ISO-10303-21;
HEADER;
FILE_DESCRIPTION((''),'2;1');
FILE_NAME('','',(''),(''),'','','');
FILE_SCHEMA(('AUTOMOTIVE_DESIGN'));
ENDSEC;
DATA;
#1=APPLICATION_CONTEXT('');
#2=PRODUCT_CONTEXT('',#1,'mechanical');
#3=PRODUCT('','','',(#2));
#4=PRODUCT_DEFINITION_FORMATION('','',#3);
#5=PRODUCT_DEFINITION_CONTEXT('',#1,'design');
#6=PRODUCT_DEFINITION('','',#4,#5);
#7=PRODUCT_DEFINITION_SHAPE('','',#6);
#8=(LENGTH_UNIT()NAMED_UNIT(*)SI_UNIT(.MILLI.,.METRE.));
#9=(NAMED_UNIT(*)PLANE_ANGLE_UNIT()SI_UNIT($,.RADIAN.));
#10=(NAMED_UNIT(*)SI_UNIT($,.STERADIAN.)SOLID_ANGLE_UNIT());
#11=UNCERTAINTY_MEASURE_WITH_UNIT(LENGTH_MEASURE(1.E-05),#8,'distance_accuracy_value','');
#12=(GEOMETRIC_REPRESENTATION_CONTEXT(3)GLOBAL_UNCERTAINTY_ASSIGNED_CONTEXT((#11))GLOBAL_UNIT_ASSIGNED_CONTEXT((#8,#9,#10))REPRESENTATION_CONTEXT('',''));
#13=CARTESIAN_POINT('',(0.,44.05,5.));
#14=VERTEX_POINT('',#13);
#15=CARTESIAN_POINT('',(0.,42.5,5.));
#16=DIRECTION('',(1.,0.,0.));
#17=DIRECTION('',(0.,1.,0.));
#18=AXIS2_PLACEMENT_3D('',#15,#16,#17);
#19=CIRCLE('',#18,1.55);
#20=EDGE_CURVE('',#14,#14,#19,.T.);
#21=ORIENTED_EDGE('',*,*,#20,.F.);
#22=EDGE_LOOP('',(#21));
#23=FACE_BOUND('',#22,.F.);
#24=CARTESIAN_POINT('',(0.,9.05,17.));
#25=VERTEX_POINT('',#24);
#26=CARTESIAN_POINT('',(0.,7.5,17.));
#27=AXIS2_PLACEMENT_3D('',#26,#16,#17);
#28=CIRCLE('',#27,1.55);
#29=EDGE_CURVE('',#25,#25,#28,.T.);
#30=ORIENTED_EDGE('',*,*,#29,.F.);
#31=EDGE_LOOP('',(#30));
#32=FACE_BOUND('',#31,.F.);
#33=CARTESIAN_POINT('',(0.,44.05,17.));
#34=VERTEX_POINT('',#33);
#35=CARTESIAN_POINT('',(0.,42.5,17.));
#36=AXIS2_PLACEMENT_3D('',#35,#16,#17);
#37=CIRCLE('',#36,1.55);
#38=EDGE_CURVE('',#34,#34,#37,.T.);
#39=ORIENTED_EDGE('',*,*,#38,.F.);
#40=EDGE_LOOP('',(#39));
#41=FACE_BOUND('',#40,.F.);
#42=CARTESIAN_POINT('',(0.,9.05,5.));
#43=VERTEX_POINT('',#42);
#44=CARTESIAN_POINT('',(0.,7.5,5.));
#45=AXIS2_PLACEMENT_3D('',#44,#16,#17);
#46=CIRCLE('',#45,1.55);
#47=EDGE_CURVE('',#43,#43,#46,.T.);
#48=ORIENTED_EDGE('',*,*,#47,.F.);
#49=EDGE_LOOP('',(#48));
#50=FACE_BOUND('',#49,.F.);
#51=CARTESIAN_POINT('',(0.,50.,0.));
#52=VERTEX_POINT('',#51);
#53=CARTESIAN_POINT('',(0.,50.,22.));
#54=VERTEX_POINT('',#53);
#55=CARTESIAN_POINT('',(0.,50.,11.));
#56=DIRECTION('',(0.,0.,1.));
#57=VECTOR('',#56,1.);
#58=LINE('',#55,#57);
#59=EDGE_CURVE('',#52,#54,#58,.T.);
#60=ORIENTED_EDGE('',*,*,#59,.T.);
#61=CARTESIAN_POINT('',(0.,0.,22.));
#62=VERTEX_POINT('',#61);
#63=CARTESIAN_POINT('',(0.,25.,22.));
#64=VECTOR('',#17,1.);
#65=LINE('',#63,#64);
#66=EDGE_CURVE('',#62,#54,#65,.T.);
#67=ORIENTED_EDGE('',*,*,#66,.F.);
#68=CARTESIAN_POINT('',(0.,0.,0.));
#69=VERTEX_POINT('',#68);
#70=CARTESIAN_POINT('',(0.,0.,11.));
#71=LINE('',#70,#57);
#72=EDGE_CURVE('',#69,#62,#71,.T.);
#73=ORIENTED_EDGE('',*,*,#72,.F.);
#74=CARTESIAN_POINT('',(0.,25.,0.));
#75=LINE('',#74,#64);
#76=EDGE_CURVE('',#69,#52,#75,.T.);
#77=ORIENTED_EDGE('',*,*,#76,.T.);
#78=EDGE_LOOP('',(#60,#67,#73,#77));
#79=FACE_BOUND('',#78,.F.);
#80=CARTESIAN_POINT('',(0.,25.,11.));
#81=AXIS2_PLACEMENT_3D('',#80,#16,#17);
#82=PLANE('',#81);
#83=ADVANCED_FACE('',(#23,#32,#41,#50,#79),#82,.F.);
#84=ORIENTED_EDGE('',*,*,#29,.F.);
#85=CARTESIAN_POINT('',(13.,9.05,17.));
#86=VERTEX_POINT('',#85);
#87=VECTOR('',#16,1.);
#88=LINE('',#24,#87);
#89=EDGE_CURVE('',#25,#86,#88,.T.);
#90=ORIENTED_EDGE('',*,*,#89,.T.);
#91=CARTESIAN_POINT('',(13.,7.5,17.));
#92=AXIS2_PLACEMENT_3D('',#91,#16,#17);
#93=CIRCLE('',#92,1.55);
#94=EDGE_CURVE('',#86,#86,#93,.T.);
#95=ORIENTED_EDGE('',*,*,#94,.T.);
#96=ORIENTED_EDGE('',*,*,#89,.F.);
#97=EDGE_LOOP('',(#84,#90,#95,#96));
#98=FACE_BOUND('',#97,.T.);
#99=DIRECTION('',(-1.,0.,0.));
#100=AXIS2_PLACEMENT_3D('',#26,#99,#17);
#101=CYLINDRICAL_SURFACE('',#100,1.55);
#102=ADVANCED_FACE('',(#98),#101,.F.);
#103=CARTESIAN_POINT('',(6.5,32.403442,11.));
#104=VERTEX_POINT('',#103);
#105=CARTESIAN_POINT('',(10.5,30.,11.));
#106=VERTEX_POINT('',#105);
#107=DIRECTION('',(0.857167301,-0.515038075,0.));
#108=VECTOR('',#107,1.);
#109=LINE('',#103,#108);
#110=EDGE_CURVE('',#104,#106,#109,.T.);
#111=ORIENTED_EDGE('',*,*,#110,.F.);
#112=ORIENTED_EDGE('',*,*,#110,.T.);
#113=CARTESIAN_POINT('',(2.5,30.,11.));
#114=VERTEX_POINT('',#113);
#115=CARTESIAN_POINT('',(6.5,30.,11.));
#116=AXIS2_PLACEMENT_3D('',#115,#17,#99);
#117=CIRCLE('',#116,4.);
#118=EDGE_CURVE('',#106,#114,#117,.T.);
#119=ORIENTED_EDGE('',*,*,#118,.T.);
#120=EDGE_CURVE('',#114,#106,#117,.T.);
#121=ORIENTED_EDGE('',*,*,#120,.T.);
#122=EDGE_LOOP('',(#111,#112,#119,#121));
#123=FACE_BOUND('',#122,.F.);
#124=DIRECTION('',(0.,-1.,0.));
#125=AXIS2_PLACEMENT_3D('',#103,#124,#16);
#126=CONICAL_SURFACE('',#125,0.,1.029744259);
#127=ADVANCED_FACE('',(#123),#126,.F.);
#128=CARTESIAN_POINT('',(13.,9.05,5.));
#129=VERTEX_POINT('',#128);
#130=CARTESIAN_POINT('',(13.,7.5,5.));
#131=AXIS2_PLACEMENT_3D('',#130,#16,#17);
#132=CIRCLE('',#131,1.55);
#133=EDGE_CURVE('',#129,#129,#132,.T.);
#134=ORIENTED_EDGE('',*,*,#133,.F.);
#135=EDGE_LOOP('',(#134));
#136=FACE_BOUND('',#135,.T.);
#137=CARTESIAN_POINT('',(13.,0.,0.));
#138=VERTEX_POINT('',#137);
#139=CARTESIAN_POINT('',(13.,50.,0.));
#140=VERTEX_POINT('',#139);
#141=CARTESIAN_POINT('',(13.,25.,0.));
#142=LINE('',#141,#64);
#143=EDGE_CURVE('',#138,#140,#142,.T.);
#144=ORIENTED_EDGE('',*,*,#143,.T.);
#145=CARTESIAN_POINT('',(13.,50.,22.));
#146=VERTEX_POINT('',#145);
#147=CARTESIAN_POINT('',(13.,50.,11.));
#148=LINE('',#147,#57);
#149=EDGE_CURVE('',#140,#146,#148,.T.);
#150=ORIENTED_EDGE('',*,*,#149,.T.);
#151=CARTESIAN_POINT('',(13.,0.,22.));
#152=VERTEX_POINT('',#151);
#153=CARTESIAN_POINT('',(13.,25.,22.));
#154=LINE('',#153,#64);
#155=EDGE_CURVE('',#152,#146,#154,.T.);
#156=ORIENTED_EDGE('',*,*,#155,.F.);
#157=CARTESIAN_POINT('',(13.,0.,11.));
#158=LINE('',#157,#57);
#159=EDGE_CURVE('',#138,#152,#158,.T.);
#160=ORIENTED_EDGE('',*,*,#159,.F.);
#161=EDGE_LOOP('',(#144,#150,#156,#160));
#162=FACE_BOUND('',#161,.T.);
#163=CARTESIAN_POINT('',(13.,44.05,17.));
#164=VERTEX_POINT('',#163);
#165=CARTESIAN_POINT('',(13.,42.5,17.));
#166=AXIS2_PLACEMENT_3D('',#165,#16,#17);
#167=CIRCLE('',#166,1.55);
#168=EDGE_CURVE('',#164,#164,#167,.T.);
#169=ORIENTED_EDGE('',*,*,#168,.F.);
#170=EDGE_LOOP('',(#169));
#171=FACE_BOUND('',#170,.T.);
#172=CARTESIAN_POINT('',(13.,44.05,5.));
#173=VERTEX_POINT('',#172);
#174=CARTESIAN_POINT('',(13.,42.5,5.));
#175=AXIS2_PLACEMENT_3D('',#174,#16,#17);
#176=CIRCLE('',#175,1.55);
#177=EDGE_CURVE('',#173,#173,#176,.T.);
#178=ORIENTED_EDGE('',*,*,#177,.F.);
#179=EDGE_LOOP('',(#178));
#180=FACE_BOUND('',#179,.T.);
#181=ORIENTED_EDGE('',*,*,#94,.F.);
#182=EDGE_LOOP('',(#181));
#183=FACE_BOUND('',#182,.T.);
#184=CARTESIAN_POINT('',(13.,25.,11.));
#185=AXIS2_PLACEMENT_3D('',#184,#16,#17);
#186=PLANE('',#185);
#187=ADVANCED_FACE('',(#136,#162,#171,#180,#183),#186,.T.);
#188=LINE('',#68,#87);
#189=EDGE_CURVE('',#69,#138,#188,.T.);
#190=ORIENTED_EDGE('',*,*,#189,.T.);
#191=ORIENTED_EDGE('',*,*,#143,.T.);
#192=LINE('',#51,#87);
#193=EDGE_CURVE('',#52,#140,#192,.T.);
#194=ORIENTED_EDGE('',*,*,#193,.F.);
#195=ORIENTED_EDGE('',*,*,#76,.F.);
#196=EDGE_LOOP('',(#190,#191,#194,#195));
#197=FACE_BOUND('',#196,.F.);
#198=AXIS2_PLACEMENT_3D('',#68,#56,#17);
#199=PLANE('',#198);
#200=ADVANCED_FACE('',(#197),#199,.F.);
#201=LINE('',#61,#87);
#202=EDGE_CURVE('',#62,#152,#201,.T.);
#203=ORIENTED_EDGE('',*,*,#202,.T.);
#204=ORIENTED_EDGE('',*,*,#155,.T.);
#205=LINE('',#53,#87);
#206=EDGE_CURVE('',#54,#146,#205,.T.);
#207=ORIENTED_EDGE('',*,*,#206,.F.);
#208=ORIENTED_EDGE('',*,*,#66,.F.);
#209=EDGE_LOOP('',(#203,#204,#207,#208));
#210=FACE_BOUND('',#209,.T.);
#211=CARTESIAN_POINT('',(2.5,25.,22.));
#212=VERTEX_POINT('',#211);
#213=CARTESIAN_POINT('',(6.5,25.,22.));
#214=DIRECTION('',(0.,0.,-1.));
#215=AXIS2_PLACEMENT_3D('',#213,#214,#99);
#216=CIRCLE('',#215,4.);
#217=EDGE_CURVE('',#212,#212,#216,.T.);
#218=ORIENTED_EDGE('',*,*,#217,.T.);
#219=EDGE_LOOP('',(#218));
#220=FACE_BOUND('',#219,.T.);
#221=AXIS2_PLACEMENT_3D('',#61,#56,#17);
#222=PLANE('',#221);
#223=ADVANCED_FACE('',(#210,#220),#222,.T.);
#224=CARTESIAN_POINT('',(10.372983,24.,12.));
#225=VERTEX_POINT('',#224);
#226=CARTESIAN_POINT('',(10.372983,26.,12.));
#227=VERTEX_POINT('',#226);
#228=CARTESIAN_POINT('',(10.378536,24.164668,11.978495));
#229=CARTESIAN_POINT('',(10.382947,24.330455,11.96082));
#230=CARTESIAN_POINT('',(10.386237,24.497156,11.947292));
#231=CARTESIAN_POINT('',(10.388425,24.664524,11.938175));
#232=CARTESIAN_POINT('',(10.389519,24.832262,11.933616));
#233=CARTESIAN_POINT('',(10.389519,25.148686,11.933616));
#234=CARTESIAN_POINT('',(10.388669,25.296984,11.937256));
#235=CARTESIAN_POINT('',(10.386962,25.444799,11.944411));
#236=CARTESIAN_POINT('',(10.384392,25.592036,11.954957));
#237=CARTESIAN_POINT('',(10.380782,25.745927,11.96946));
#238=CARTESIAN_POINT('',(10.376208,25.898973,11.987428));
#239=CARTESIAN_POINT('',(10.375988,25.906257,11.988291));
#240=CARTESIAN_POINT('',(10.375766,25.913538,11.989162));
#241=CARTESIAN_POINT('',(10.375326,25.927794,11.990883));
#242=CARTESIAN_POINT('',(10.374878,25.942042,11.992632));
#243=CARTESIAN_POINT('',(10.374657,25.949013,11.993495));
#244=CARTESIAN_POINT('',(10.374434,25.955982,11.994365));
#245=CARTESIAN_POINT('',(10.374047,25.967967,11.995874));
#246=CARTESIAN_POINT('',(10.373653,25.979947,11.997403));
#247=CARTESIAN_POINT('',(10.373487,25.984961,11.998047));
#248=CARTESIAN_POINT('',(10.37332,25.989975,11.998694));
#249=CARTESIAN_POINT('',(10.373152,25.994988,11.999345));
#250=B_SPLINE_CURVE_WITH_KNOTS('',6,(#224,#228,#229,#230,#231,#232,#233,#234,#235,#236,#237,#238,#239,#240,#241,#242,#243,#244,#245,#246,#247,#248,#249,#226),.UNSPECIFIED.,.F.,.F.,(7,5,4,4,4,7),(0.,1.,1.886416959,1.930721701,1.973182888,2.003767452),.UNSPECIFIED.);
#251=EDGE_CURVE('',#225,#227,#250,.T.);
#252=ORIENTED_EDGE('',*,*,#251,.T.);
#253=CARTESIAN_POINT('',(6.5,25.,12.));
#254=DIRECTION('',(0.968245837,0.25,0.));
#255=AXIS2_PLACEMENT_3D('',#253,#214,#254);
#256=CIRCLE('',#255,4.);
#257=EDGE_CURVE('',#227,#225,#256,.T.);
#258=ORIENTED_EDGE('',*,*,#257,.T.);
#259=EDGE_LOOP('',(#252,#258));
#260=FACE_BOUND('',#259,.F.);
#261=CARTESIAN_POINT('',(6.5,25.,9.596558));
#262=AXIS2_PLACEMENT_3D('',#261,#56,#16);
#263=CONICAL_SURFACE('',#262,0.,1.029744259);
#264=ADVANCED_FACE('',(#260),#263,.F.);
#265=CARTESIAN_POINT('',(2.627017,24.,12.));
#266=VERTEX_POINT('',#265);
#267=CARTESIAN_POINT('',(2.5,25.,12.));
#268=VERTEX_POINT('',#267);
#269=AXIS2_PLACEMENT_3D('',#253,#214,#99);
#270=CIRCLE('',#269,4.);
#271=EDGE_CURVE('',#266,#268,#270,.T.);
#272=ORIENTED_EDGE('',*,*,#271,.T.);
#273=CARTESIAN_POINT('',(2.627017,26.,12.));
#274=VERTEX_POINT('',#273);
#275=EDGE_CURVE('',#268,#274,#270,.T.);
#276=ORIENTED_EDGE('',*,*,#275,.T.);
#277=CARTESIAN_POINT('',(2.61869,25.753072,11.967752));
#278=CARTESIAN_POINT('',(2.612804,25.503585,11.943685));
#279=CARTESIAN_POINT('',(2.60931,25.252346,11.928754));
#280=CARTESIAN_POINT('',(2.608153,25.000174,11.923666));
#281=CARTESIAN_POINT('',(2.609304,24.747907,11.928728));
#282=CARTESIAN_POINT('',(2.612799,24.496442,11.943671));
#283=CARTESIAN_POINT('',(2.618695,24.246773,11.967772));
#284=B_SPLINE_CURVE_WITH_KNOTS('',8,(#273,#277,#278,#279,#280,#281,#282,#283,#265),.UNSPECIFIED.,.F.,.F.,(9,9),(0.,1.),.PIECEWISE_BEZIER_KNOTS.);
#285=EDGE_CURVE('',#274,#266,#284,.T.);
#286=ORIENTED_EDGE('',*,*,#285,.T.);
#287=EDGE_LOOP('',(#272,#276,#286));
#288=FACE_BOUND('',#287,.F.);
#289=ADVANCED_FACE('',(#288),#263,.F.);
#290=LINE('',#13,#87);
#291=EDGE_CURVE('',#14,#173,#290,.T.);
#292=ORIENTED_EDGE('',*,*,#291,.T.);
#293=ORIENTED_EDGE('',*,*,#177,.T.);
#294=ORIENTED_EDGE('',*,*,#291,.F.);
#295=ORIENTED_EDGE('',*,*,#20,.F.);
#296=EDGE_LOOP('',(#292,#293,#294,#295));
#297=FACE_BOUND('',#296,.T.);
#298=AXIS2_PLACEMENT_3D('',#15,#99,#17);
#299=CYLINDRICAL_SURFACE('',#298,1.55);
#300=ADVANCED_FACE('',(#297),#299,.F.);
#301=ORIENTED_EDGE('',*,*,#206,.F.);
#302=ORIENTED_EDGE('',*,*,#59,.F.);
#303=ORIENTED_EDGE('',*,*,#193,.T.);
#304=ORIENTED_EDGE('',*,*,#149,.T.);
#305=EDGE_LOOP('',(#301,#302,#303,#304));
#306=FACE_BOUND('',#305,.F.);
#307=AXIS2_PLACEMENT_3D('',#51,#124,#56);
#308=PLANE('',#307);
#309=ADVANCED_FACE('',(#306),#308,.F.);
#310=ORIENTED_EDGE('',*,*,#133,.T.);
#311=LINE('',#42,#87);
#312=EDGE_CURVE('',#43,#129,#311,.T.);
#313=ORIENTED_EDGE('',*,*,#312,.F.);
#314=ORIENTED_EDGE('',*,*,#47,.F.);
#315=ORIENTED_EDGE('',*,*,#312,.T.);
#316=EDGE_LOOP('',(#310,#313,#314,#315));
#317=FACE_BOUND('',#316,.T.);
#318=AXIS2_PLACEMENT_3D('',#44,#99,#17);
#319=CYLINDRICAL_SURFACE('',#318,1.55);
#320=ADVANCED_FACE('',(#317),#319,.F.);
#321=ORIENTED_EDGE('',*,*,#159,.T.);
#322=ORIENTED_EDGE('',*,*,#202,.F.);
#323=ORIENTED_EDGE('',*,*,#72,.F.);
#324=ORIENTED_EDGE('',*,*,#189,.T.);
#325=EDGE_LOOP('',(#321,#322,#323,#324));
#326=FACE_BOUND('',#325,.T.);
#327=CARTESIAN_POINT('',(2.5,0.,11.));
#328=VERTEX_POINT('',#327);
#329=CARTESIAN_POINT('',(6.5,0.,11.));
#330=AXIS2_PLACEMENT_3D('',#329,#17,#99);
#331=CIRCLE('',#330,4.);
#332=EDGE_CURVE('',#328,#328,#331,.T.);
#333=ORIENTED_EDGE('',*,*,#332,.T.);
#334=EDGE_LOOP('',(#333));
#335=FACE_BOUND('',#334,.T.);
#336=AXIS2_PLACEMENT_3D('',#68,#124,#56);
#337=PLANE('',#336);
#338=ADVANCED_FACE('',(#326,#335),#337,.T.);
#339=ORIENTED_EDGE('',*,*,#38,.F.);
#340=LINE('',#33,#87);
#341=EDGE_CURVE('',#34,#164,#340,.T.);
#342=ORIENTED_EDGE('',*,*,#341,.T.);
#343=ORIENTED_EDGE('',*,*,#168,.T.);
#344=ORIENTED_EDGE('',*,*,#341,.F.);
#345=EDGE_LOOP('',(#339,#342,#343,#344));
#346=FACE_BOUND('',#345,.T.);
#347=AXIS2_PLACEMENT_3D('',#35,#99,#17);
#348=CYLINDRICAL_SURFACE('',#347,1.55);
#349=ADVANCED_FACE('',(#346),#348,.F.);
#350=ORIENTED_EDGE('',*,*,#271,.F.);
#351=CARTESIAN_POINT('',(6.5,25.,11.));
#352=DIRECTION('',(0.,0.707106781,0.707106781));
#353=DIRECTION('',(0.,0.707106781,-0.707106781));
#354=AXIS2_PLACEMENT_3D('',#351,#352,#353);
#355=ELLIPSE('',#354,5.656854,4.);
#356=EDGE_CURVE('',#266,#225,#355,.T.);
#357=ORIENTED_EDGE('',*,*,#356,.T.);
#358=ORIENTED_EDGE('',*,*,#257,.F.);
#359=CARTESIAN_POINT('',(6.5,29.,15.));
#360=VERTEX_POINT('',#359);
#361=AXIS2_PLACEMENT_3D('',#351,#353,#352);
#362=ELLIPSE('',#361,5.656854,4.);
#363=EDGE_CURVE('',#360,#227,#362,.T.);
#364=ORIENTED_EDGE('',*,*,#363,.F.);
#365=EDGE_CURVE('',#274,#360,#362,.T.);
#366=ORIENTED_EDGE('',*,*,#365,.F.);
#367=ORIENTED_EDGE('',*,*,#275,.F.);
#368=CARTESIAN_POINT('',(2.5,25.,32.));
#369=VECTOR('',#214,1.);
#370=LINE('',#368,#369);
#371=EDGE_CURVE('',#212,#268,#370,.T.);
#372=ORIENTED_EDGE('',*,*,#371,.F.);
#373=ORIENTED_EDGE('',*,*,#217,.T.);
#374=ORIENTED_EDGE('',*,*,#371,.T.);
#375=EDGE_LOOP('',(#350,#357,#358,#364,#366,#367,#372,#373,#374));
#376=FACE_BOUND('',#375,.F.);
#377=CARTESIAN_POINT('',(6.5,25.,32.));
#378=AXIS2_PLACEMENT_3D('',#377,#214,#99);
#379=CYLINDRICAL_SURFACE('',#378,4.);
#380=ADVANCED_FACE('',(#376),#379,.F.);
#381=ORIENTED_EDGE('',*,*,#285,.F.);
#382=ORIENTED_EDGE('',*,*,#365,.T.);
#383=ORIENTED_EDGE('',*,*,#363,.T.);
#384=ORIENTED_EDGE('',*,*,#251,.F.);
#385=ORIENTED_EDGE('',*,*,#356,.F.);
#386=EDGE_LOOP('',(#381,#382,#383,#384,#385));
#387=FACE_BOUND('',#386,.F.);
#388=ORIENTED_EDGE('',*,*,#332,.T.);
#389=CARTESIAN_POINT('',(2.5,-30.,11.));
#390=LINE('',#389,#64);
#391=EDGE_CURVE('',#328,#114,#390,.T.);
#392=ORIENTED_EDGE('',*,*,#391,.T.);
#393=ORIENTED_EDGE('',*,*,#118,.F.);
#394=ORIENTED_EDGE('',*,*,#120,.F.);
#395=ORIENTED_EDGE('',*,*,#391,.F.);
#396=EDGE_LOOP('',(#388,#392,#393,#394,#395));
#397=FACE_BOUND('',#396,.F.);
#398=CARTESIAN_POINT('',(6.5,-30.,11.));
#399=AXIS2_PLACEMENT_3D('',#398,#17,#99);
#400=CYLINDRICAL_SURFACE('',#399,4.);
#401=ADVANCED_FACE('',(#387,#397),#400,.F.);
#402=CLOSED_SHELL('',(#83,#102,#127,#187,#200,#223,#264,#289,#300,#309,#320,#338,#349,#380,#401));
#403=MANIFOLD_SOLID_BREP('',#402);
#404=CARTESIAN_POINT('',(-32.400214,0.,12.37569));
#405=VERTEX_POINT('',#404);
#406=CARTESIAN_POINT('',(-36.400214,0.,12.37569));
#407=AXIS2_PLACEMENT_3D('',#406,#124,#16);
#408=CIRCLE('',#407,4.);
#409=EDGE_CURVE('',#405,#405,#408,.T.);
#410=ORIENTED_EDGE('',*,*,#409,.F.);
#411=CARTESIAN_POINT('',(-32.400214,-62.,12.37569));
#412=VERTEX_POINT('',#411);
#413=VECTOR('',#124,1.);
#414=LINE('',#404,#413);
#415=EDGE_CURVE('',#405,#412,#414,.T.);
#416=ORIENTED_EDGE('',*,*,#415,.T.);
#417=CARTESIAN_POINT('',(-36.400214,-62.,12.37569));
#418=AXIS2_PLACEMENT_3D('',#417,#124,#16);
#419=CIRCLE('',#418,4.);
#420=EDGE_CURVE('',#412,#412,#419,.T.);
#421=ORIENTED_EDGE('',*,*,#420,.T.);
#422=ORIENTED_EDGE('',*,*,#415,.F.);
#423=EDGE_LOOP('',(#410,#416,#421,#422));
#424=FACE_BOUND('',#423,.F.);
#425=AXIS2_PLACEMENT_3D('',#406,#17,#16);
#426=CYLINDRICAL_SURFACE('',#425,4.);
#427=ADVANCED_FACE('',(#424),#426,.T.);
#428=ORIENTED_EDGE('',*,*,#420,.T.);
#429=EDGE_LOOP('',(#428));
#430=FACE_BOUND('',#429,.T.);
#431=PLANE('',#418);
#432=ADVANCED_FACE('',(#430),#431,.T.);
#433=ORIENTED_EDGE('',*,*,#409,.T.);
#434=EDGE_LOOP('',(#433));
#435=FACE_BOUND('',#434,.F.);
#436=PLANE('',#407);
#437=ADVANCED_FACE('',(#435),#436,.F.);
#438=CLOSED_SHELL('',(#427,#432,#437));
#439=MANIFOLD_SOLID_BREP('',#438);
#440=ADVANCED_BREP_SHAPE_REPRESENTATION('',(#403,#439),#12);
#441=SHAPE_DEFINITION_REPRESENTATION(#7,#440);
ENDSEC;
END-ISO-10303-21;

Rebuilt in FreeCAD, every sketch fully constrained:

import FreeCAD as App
import Part
import Sketcher

V = App.Vector


def add_polygon(sketch, points):
    """Adds a closed chain of lines whose ends are joined by coincident constraints."""
    first, n = sketch.GeometryCount, len(points)
    for a, b in zip(points, points[1:] + points[:1]):
        sketch.addGeometry(Part.LineSegment(App.Vector(*a, 0), App.Vector(*b, 0)), False)
    for i in range(n):
        sketch.addConstraint(Sketcher.Constraint("Coincident", first + i, 2, first + (i + 1) % n, 1))

doc = App.newDocument("Part")
body = doc.addObject("PartDesign::Body", "Body")

# Sketch on YZ plane
sketch1 = body.newObject("Sketcher::SketchObject", "Sketch")
sketch1.AttachmentSupport = (doc.getObject("YZ_Plane"), [""])
sketch1.MapMode = "FlatFace"
add_polygon(sketch1, [(0, 22), (0, 0), (50, 0), (50, 22)])  # lines 0-3
sketch1.addGeometry(Part.Circle(V(7.5, 5, 0), V(0, 0, 1), 1.6), False)  # 4
sketch1.addGeometry(Part.Circle(V(42.5, 5, 0), V(0, 0, 1), 1.6), False)  # 5
sketch1.addGeometry(Part.Circle(V(7.5, 17, 0), V(0, 0, 1), 1.6), False)  # 6
sketch1.addGeometry(Part.Circle(V(42.5, 17, 0), V(0, 0, 1), 1.6), False)  # 7
sketch1.addConstraint([
    Sketcher.Constraint("Vertical", 0),
    Sketcher.Constraint("Horizontal", 1),
    Sketcher.Constraint("Vertical", 2),
    Sketcher.Constraint("Horizontal", 3),
    Sketcher.Constraint("Coincident", 0, 2, -1, 1),
    Sketcher.Constraint("Equal", 4, 5),
    Sketcher.Constraint("Equal", 5, 6),
    Sketcher.Constraint("Equal", 6, 7),
    Sketcher.Constraint("Horizontal", 4, 3, 5, 3),
    Sketcher.Constraint("Horizontal", 6, 3, 7, 3),
    Sketcher.Constraint("Vertical", 4, 3, 6, 3),
    Sketcher.Constraint("Vertical", 5, 3, 7, 3),
    Sketcher.Constraint("Diameter", 4, 3.1),
    Sketcher.Constraint("DistanceX", 1, 1, 1, 2, 50.0),
    Sketcher.Constraint("DistanceY", 0, 2, 0, 1, 22.0),
    Sketcher.Constraint("DistanceY", -1, 1, 4, 3, 5.0),
    Sketcher.Constraint("DistanceY", -1, 1, 6, 3, 17.0),
    Sketcher.Constraint("DistanceX", 4, 3, 5, 3, 35.0),
    Sketcher.Constraint("DistanceX", -1, 1, 4, 3, 7.5),
])
pad1 = body.newObject("PartDesign::Pad", "Pad")
pad1.Profile = sketch1
pad1.Length = 13

# Sketch on XZ plane
sketch2 = body.newObject("Sketcher::SketchObject", "Sketch001")
sketch2.AttachmentSupport = (doc.getObject("XZ_Plane"), [""])
sketch2.MapMode = "FlatFace"
sketch2.addGeometry(Part.Circle(V(6.5, 11, 0), V(0, 0, 1), 4), False)
sketch2.addConstraint([
    Sketcher.Constraint("Diameter", 0, 8.0),
    Sketcher.Constraint("DistanceY", -1, 1, 0, 3, 11.0),
    Sketcher.Constraint("DistanceX", -1, 1, 0, 3, 6.5),
])
doc.recompute()
hole = body.newObject("PartDesign::Hole", "Hole")
hole.Profile = sketch2
hole.ThreadType = "None"
hole.Diameter = 8
hole.DepthType = "Dimension"
hole.Depth = 30
hole.DrillPoint = "Angled"
hole.DrillPointAngle = 118

# Sketch on XY plane
sketch3 = body.newObject("Sketcher::SketchObject", "Sketch002")
sketch3.AttachmentSupport = (doc.getObject("XY_Plane"), [""])
sketch3.MapMode = "FlatFace"
sketch3.AttachmentOffset = App.Placement(V(0, 0, 22), App.Rotation())
sketch3.addGeometry(Part.Circle(V(6.5, 25, 0), V(0, 0, 1), 4), False)
sketch3.addConstraint([
    Sketcher.Constraint("Diameter", 0, 8.0),
    Sketcher.Constraint("DistanceY", -1, 1, 0, 3, 25.0),
    Sketcher.Constraint("DistanceX", -1, 1, 0, 3, 6.5),
])
doc.recompute()
hole2 = body.newObject("PartDesign::Hole", "Hole001")
hole2.Profile = sketch3
hole2.ThreadType = "None"
hole2.Diameter = 8
hole2.DepthType = "Dimension"
hole2.Depth = 10
hole2.DrillPoint = "Angled"
hole2.DrillPointAngle = 118
body2 = doc.addObject("PartDesign::Body", "Body001")

# Sketch on XZ plane
sketch4 = body2.newObject("Sketcher::SketchObject", "Sketch003")
sketch4.AttachmentSupport = (doc.getObject("XZ_Plane001"), [""])
sketch4.MapMode = "FlatFace"
sketch4.addGeometry(Part.Circle(V(-36.4, 12.4, 0), V(0, 0, 1), 4), False)
sketch4.addConstraint([
    Sketcher.Constraint("Diameter", 0, 8.0),
    Sketcher.Constraint("DistanceY", -1, 1, 0, 3, 12.37569),
    Sketcher.Constraint("DistanceX", 0, 3, -1, 1, 36.400214),
])
pad2 = body2.newObject("PartDesign::Pad", "Pad001")
pad2.Profile = sketch4
pad2.Length = 62

doc.recompute()
